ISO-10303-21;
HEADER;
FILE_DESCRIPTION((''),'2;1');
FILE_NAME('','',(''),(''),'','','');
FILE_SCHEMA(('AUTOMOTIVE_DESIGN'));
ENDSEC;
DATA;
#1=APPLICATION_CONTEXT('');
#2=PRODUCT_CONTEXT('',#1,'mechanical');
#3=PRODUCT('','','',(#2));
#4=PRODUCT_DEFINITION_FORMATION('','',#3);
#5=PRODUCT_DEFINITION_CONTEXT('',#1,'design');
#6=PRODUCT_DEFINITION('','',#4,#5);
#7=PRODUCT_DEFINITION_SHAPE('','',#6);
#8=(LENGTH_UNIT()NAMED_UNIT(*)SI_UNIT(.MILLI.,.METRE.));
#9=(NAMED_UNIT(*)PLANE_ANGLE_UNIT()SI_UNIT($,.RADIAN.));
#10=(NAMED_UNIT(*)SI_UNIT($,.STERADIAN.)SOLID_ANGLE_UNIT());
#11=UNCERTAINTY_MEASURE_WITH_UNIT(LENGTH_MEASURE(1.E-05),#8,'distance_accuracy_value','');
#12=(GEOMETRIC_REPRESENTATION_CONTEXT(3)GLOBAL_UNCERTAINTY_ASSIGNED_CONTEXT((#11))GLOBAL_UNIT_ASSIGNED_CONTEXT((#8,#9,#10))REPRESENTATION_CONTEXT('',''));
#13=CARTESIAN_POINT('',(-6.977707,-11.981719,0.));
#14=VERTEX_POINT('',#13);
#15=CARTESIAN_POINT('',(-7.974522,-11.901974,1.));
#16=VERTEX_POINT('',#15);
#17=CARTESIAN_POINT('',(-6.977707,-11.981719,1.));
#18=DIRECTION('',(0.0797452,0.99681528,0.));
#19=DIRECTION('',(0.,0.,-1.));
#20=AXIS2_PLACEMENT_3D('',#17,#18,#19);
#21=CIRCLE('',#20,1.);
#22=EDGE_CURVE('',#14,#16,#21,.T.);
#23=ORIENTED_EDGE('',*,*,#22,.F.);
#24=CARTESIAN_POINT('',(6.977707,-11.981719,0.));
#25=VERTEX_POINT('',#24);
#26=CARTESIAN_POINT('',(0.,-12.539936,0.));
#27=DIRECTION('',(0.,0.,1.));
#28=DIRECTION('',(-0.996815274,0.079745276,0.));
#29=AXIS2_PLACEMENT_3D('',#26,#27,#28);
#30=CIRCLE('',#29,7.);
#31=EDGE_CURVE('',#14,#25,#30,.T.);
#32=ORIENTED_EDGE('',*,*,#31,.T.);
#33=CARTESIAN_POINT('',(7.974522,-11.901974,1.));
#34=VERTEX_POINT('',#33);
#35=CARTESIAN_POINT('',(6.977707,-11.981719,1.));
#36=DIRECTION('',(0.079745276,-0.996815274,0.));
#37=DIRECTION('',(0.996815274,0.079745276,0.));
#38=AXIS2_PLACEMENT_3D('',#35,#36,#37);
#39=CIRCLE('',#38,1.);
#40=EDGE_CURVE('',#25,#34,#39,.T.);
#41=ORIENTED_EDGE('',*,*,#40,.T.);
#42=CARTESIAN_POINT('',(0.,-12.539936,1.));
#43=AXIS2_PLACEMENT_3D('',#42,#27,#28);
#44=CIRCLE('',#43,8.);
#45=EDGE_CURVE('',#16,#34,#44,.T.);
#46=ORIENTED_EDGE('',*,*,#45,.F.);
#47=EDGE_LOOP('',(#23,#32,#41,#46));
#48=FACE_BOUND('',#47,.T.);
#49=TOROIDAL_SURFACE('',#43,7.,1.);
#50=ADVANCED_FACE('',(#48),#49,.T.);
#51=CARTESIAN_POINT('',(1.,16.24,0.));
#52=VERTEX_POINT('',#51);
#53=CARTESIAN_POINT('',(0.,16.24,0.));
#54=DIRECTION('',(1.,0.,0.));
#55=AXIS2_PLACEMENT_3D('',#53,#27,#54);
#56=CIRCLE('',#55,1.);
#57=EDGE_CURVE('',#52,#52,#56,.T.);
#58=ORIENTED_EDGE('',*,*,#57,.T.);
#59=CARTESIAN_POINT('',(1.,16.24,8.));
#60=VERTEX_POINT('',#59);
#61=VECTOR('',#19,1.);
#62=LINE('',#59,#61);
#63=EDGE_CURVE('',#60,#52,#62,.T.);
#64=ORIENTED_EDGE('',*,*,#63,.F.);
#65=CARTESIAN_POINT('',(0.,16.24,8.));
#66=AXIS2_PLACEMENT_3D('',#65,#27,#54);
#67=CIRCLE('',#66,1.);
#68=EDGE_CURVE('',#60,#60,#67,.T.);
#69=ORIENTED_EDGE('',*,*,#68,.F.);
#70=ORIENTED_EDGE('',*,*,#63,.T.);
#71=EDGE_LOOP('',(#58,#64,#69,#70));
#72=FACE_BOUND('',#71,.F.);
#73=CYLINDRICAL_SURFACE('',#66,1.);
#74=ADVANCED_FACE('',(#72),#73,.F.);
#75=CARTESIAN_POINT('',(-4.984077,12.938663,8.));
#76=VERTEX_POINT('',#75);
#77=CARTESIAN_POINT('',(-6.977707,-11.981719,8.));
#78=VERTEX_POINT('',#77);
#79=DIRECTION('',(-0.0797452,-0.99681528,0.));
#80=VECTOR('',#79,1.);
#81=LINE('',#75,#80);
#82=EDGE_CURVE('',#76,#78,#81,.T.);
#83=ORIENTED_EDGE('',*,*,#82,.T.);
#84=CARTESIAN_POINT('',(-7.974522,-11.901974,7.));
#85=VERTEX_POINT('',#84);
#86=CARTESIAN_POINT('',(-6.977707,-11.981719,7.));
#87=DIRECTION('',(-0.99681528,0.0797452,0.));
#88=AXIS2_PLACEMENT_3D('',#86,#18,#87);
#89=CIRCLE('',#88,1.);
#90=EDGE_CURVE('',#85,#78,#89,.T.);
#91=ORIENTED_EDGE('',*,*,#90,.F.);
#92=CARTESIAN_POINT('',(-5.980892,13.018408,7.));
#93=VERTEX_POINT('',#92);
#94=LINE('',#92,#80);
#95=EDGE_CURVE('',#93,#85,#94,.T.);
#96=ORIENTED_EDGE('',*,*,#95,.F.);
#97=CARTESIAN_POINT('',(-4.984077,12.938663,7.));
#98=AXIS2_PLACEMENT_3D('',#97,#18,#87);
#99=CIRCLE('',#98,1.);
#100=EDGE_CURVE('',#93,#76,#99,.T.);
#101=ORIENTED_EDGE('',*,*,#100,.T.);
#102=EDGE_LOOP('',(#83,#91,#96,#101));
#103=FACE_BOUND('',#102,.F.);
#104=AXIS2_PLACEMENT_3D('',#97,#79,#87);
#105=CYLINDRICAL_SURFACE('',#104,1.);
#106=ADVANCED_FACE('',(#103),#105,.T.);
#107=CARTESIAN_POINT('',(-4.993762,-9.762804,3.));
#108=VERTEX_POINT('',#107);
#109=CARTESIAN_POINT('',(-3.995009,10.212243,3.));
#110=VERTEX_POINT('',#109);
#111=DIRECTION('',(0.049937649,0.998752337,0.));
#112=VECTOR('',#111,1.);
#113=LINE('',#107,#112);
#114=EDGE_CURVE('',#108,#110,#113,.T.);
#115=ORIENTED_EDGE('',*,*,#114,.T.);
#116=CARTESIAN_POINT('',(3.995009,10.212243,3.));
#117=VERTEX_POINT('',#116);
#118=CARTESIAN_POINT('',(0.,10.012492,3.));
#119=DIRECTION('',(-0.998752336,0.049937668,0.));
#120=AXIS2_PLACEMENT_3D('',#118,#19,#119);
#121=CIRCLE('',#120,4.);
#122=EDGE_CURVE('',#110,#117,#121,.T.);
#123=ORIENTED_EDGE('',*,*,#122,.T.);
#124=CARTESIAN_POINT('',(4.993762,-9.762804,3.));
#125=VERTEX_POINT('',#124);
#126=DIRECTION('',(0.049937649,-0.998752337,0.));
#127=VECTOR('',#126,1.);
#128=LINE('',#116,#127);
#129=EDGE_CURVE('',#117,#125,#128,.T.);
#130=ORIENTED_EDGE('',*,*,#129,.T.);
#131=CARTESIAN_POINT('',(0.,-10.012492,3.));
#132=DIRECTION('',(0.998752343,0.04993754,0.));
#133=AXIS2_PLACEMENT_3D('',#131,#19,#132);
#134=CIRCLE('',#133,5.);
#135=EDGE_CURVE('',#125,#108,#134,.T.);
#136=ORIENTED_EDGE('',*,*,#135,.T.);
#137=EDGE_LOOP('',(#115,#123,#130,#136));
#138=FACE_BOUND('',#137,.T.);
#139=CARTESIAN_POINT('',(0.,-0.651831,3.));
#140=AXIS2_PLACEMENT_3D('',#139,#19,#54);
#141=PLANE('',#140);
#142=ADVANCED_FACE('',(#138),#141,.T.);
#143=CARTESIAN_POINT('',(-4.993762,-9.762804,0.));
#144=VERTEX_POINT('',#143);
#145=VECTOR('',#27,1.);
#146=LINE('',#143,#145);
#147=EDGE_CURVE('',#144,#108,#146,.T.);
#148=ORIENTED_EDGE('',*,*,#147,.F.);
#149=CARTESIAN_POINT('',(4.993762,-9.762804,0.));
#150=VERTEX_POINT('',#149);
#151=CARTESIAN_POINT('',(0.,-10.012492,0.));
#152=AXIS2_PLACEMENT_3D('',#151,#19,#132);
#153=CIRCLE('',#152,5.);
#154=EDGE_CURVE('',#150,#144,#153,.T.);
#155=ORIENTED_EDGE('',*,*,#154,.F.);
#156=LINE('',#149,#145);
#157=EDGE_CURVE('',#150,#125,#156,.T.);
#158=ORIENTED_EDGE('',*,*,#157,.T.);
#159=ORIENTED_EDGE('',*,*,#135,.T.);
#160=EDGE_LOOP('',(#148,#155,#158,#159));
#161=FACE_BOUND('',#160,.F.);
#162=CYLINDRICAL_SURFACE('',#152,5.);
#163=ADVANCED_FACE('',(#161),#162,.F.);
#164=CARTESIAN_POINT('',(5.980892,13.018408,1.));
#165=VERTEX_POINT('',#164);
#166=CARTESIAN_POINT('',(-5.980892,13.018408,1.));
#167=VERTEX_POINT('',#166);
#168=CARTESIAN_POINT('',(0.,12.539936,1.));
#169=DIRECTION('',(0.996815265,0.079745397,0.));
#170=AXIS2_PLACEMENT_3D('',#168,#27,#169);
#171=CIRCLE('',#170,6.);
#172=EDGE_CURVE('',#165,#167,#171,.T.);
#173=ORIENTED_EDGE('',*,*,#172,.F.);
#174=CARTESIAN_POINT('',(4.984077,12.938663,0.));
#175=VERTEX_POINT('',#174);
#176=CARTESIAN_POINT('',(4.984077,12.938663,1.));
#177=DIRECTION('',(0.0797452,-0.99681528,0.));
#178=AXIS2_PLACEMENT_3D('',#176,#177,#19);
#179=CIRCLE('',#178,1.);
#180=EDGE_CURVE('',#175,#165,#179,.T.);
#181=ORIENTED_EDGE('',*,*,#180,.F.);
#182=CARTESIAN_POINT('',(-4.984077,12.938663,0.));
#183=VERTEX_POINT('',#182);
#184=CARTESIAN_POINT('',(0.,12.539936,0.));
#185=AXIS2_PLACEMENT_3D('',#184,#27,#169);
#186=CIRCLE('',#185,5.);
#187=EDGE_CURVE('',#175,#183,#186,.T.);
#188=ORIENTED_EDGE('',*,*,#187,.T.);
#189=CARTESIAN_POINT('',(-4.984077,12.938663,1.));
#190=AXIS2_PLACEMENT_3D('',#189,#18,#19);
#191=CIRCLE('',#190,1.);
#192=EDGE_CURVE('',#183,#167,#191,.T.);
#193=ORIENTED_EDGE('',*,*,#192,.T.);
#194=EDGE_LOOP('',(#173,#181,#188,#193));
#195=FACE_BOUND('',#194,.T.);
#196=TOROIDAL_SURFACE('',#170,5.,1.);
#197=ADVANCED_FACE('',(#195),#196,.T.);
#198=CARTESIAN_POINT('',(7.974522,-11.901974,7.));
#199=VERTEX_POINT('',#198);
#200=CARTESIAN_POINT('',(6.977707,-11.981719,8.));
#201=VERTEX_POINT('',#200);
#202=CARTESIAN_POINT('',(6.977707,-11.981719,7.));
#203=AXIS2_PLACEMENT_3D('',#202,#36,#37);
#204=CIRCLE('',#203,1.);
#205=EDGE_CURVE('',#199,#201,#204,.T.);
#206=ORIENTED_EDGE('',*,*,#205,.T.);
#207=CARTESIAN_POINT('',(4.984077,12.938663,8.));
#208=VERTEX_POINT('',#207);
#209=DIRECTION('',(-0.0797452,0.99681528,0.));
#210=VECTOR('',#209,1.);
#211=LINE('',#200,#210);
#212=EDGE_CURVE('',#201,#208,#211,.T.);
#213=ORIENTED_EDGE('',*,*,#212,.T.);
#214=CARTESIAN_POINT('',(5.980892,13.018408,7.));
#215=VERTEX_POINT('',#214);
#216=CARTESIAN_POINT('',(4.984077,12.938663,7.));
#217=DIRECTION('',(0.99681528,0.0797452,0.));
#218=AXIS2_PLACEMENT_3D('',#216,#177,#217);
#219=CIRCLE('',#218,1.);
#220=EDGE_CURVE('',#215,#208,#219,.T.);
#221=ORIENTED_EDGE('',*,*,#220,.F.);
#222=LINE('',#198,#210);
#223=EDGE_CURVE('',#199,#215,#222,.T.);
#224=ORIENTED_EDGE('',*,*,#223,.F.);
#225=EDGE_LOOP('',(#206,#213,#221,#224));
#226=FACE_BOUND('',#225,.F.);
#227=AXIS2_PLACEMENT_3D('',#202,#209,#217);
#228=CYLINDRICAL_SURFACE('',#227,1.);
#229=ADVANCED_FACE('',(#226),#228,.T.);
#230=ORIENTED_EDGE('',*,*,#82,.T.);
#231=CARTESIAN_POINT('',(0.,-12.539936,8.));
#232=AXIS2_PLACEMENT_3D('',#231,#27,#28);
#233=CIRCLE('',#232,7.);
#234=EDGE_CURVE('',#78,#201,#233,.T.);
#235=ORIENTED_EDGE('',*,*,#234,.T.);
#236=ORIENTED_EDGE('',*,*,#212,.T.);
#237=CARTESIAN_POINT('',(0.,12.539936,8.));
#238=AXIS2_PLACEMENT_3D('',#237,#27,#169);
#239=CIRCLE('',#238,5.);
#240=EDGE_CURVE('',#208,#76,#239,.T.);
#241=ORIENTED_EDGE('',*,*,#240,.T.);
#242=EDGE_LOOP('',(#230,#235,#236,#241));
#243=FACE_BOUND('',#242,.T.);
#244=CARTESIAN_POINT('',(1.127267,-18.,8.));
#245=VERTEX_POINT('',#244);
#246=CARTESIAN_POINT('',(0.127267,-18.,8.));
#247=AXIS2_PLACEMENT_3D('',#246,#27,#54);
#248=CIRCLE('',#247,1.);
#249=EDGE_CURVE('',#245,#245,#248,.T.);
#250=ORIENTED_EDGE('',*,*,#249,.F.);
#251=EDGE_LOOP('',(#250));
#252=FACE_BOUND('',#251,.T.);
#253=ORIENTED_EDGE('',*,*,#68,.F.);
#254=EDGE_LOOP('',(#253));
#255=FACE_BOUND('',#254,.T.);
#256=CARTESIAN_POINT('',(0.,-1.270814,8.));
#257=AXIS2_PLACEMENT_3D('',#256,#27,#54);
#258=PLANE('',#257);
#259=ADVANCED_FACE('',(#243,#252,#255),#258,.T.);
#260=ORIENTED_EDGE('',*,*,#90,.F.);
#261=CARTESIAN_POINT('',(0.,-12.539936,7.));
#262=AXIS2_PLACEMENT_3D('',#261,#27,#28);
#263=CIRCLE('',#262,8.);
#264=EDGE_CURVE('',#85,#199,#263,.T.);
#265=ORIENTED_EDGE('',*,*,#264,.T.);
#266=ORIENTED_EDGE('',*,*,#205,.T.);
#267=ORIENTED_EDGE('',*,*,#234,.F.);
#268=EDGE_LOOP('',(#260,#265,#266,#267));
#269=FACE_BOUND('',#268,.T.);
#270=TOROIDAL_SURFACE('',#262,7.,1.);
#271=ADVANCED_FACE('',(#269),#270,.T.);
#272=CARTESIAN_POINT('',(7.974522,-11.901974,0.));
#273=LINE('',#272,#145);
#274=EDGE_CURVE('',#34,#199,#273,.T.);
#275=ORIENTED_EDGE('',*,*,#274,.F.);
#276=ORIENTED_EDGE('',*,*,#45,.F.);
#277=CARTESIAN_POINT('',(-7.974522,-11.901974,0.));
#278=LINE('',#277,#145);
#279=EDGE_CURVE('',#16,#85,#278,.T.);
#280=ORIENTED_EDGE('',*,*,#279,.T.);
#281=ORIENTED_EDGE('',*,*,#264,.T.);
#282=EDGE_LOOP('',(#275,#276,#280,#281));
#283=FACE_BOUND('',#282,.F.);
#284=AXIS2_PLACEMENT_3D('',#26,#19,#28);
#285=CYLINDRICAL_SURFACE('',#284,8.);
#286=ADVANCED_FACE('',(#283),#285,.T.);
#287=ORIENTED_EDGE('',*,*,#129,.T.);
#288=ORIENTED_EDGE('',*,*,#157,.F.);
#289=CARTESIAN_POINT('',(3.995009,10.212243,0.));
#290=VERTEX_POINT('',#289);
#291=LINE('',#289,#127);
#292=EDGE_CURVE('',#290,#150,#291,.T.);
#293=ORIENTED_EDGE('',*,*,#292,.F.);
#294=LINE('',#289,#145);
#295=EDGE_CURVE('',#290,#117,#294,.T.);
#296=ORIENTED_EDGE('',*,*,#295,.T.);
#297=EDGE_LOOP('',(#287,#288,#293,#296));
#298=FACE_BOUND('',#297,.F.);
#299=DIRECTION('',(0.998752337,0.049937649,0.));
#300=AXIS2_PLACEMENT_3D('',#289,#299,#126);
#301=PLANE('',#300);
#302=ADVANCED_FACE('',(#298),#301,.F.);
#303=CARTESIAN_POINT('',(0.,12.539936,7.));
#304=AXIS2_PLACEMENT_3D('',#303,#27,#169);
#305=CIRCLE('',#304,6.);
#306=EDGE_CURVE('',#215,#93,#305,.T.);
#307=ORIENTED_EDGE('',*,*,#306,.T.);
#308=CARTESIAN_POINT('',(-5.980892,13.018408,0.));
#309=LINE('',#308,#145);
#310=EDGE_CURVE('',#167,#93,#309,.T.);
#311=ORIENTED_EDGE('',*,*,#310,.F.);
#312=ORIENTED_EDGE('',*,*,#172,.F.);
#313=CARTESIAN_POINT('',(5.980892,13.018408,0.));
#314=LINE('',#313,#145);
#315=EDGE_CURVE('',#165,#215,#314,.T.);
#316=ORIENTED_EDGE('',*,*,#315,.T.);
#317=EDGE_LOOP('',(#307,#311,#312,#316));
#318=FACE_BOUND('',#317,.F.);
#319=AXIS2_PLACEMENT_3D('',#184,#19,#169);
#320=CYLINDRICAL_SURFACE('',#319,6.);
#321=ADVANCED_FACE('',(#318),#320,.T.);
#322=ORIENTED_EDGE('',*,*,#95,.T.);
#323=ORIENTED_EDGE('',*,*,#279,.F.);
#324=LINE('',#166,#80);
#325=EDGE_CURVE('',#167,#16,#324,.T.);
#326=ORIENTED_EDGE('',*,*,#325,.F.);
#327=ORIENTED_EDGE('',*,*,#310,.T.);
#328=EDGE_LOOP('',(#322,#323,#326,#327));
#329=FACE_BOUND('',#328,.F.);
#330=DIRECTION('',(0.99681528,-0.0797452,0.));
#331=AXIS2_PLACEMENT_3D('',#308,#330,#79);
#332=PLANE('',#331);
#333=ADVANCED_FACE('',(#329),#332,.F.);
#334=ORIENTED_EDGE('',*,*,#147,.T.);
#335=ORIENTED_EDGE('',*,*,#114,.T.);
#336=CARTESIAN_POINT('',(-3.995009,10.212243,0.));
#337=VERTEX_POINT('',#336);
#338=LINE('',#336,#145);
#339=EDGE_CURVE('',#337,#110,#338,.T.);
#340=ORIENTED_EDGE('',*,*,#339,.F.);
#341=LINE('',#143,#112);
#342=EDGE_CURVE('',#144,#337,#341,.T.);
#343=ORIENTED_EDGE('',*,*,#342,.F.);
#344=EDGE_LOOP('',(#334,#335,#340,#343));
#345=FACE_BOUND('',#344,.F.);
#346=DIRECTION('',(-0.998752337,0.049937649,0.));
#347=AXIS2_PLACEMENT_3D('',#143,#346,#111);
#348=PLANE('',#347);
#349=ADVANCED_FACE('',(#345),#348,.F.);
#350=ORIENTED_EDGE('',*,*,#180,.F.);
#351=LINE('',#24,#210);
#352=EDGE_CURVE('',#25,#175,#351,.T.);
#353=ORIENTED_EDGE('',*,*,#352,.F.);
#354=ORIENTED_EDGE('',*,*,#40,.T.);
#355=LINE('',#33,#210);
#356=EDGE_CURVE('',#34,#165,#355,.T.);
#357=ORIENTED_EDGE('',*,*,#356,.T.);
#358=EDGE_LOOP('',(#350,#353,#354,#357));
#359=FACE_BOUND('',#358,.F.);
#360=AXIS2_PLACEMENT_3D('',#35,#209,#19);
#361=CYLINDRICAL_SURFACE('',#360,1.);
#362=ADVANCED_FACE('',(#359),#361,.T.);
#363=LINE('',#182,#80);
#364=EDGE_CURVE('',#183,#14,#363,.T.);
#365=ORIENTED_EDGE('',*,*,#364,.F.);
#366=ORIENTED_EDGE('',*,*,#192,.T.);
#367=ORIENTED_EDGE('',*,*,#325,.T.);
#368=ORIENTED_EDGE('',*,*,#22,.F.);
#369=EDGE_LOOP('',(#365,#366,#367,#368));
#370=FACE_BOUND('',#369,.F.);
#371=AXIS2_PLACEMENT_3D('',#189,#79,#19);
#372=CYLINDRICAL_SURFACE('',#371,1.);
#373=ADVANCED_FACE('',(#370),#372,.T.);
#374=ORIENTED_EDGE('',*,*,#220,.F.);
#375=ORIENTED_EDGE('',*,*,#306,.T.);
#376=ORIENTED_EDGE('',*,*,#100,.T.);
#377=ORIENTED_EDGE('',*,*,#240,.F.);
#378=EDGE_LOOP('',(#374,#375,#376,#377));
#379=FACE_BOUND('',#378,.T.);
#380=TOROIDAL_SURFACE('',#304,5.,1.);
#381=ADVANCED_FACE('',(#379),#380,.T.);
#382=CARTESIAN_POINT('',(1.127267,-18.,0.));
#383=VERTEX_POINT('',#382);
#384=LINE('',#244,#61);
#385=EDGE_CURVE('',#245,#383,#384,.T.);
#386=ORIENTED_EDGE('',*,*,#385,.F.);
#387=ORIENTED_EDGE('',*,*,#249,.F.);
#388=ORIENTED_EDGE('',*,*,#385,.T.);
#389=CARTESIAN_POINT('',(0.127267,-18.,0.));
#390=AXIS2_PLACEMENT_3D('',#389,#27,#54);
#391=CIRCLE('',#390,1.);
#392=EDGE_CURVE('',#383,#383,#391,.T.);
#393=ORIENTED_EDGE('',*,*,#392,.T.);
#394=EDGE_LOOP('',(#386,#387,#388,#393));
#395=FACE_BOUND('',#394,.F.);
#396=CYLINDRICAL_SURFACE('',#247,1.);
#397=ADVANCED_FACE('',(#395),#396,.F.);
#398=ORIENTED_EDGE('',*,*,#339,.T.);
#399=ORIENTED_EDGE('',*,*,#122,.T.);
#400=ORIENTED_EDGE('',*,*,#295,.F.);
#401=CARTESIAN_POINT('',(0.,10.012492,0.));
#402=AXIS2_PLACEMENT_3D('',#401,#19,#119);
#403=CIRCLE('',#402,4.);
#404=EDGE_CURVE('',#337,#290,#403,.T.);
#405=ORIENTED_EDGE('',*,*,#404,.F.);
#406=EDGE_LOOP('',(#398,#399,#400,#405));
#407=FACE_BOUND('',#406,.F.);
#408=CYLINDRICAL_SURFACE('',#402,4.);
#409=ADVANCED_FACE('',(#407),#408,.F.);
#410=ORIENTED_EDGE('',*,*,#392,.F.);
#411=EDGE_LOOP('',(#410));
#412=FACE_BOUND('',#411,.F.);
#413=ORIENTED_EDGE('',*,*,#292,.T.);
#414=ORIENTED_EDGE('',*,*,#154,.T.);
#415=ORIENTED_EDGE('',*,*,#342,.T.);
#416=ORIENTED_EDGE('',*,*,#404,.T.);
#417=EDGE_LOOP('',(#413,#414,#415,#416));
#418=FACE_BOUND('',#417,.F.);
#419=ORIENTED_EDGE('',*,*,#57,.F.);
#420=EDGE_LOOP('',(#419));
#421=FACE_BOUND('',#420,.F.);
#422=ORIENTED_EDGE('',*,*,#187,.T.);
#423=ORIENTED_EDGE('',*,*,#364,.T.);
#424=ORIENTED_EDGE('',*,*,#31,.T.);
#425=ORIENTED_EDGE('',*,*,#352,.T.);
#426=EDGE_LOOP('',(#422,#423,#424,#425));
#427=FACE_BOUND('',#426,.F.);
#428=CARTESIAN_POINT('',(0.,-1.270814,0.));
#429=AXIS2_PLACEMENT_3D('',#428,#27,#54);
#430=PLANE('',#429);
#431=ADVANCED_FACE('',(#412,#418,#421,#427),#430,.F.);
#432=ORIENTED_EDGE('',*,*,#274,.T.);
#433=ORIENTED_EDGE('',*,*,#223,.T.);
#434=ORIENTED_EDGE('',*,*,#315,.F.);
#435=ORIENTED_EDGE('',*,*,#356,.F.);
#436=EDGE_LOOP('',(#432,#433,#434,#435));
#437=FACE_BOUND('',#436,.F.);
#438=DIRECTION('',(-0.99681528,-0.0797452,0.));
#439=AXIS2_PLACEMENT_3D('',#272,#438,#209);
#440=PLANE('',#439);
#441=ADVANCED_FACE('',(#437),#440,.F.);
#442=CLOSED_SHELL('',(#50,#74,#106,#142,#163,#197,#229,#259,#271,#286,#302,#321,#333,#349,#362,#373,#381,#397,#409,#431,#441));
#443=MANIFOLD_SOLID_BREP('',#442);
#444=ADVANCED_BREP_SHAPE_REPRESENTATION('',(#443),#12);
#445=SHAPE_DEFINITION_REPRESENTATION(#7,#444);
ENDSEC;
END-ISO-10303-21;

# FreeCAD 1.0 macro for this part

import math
import FreeCAD as App
import Part
import Sketcher

V = App.Vector
Q = App.Units.Quantity


def edges_at(feature, points):
    """Names of the edges that pass closest to the given points."""
    edges = feature.Shape.Edges
    near = lambda p: min(range(len(edges)), key=lambda i: edges[i].distToShape(Part.Vertex(*p))[0])
    return sorted({f"Edge{near(p) + 1}" for p in points})

doc = App.newDocument("Part")
body = doc.addObject("PartDesign::Body", "Body")

sketch1 = doc.addObject("Sketcher::SketchObject", "Sketch")
body.addObject(sketch1)
sketch1.AttachmentSupport = (doc.XY_Plane, [""])
sketch1.MapMode = "FlatFace"
sketch1.addGeometry([
    Part.ArcOfCircle(Part.Circle(V(0, 13, 0), V(0, 0, 1), 6), math.radians(5), math.radians(175)),
    Part.LineSegment(V(-6, 13, 0), V(-8, -12, 0)),
    Part.ArcOfCircle(Part.Circle(V(0, -13, 0), V(0, 0, 1), 8), math.radians(175), math.radians(365)),
    Part.LineSegment(V(8, -12, 0), V(6, 13, 0)),
], False)
sketch1.addConstraint([
    Sketcher.Constraint("Tangent", 0, 2, 1, 1),
    Sketcher.Constraint("Tangent", 1, 2, 2, 1),
    Sketcher.Constraint("Tangent", 2, 2, 3, 1),
    Sketcher.Constraint("Tangent", 3, 2, 0, 1),
    Sketcher.Constraint("Symmetric", 0, 3, 2, 3, -1, 1),
    Sketcher.Constraint("PointOnObject", 0, 3, -2),
    Sketcher.Constraint("Radius", 0, Q("6 mm")),
    Sketcher.Constraint("Radius", 2, Q("8 mm")),
    Sketcher.Constraint("Distance", 1, Q("25 mm")),
])
pad1 = doc.addObject("PartDesign::Pad", "Pad")
body.addObject(pad1)
pad1.Profile = sketch1
pad1.Length = 8

sketch2 = doc.addObject("Sketcher::SketchObject", "Sketch001")
body.addObject(sketch2)
sketch2.AttachmentSupport = (doc.XY_Plane, [""])
sketch2.MapMode = "FlatFace"
sketch2.AttachmentOffset = App.Placement(V(0, 0, 8), App.Rotation())
sketch2.addGeometry([
    Part.Circle(V(0, 16.2, 0), V(0, 0, 1), 1),
    Part.Circle(V(0.1, -18, 0), V(0, 0, 1), 1),
], False)
sketch2.addConstraint([
    Sketcher.Constraint("Equal", 0, 1),
    Sketcher.Constraint("PointOnObject", 0, 3, -2),
    Sketcher.Constraint("Diameter", 0, Q("2 mm")),
    Sketcher.Constraint("DistanceY", 1, 3, -1, 1, Q("18 mm")),
    Sketcher.Constraint("DistanceY", -1, 1, 0, 3, Q("16.24 mm")),
    Sketcher.Constraint("DistanceX", -1, 1, 1, 3, Q("0.127267 mm")),
])
pocket1 = doc.addObject("PartDesign::Pocket", "Pocket")
body.addObject(pocket1)
pocket1.Profile = sketch2
pocket1.Type = "ThroughAll"

sketch3 = doc.addObject("Sketcher::SketchObject", "Sketch002")
body.addObject(sketch3)
sketch3.AttachmentSupport = (doc.XY_Plane, [""])
sketch3.MapMode = "FlatFace"
sketch3.addGeometry([
    Part.ArcOfCircle(Part.Circle(V(0, -10, 0), V(0, 0, 1), 5), math.radians(177), math.radians(363)),
    Part.LineSegment(V(-5, -9.8, 0), V(-4, 10.2, 0)),
    Part.ArcOfCircle(Part.Circle(V(0, 10, 0), V(0, 0, 1), 4), math.radians(3), math.radians(177)),
    Part.LineSegment(V(4, 10.2, 0), V(5, -9.8, 0)),
], False)
sketch3.addConstraint([
    Sketcher.Constraint("Tangent", 0, 1, 1, 1),
    Sketcher.Constraint("Tangent", 1, 2, 2, 2),
    Sketcher.Constraint("Tangent", 2, 1, 3, 1),
    Sketcher.Constraint("Tangent", 3, 2, 0, 2),
    Sketcher.Constraint("Symmetric", 0, 3, 2, 3, -1, 1),
    Sketcher.Constraint("PointOnObject", 0, 3, -2),
    Sketcher.Constraint("Radius", 0, Q("5 mm")),
    Sketcher.Constraint("Radius", 2, Q("4 mm")),
    Sketcher.Constraint("Distance", 1, Q("20 mm")),
])
pocket2 = doc.addObject("PartDesign::Pocket", "Pocket001")
body.addObject(pocket2)
pocket2.Profile = sketch3
pocket2.Length = 3
pocket2.Reversed = True
doc.recompute()

fillet = doc.addObject("PartDesign::Fillet", "Fillet")
body.addObject(fillet)
fillet.Base = (pocket2, edges_at(pocket2, [(-6.978, 0.558, 8)]))
fillet.Radius = 1
doc.recompute()

fillet2 = doc.addObject("PartDesign::Fillet", "Fillet001")
body.addObject(fillet2)
fillet2.Base = (fillet, edges_at(fillet, [(-6.978, 0.558, 0)]))
fillet2.Radius = 1

doc.recompute()
